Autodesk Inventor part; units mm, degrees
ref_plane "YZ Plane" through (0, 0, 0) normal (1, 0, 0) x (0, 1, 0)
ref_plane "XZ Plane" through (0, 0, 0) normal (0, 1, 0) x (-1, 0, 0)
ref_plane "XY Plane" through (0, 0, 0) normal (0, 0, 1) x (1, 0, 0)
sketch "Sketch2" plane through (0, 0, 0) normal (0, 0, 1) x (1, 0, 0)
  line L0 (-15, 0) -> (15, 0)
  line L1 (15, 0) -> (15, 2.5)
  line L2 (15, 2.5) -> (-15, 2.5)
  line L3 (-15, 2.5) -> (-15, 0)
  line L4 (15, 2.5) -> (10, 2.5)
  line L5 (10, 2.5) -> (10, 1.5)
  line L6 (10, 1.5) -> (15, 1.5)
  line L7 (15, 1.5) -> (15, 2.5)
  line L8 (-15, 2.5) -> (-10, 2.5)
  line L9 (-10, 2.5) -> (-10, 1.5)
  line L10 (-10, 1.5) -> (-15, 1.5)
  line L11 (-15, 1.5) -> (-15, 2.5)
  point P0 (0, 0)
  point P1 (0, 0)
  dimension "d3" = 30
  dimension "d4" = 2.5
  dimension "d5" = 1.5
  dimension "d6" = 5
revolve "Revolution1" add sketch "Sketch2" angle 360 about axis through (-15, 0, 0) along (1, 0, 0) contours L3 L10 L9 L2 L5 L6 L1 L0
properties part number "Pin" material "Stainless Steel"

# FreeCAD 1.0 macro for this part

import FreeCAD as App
import Part
import Sketcher
from FreeCAD import Vector
Q = App.Units.Quantity


def add_polygon(sketch, points):
    """Adds a closed chain of lines whose ends are joined by coincident constraints."""
    first, n = sketch.GeometryCount, len(points)
    for a, b in zip(points, points[1:] + points[:1]):
        sketch.addGeometry(Part.LineSegment(App.Vector(*a, 0), App.Vector(*b, 0)), False)
    for i in range(n):
        sketch.addConstraint(Sketcher.Constraint("Coincident", first + i, 2, first + (i + 1) % n, 1))

doc = App.newDocument("Part")
body = doc.addObject("PartDesign::Body", "Body")

# Sketch on XY plane
sketch1 = doc.addObject("Sketcher::SketchObject", "Sketch")
body.addObject(sketch1)
sketch1.AttachmentSupport = (doc.XY_Plane, [""])
sketch1.MapMode = "FlatFace"
add_polygon(sketch1, [(-15, 1.5), (-15, 0), (15, 0), (15, 1.5), (10, 1.5), (10, 2.5), (-10, 2.5), (-10, 1.5)])  # lines 0-7
sketch1.addConstraint([
    Sketcher.Constraint("Vertical", 0),
    Sketcher.Constraint("Horizontal", 1),
    Sketcher.Constraint("Vertical", 2),
    Sketcher.Constraint("Horizontal", 3),
    Sketcher.Constraint("Vertical", 4),
    Sketcher.Constraint("Horizontal", 5),
    Sketcher.Constraint("Vertical", 6),
    Sketcher.Constraint("Horizontal", 7),
    Sketcher.Constraint("Symmetric", 0, 2, 1, 2, -1, 1),
    Sketcher.Constraint("Symmetric", 3, 2, 6, 2, -2),
    Sketcher.Constraint("DistanceX", 1, 1, 1, 2, Q("30 mm")),
    Sketcher.Constraint("DistanceX", 3, 2, 3, 1, Q("5 mm")),
    Sketcher.Constraint("DistanceY", 0, 2, 0, 1, Q("1.5 mm")),
    Sketcher.Constraint("DistanceY", -1, 1, 4, 2, Q("2.5 mm")),
])
revolution = doc.addObject("PartDesign::Revolution", "Revolution")
body.addObject(revolution)
revolution.Profile = sketch1
revolution.ReferenceAxis = (sketch1, ["H_Axis"])
revolution.Angle = 360

doc.recompute()
